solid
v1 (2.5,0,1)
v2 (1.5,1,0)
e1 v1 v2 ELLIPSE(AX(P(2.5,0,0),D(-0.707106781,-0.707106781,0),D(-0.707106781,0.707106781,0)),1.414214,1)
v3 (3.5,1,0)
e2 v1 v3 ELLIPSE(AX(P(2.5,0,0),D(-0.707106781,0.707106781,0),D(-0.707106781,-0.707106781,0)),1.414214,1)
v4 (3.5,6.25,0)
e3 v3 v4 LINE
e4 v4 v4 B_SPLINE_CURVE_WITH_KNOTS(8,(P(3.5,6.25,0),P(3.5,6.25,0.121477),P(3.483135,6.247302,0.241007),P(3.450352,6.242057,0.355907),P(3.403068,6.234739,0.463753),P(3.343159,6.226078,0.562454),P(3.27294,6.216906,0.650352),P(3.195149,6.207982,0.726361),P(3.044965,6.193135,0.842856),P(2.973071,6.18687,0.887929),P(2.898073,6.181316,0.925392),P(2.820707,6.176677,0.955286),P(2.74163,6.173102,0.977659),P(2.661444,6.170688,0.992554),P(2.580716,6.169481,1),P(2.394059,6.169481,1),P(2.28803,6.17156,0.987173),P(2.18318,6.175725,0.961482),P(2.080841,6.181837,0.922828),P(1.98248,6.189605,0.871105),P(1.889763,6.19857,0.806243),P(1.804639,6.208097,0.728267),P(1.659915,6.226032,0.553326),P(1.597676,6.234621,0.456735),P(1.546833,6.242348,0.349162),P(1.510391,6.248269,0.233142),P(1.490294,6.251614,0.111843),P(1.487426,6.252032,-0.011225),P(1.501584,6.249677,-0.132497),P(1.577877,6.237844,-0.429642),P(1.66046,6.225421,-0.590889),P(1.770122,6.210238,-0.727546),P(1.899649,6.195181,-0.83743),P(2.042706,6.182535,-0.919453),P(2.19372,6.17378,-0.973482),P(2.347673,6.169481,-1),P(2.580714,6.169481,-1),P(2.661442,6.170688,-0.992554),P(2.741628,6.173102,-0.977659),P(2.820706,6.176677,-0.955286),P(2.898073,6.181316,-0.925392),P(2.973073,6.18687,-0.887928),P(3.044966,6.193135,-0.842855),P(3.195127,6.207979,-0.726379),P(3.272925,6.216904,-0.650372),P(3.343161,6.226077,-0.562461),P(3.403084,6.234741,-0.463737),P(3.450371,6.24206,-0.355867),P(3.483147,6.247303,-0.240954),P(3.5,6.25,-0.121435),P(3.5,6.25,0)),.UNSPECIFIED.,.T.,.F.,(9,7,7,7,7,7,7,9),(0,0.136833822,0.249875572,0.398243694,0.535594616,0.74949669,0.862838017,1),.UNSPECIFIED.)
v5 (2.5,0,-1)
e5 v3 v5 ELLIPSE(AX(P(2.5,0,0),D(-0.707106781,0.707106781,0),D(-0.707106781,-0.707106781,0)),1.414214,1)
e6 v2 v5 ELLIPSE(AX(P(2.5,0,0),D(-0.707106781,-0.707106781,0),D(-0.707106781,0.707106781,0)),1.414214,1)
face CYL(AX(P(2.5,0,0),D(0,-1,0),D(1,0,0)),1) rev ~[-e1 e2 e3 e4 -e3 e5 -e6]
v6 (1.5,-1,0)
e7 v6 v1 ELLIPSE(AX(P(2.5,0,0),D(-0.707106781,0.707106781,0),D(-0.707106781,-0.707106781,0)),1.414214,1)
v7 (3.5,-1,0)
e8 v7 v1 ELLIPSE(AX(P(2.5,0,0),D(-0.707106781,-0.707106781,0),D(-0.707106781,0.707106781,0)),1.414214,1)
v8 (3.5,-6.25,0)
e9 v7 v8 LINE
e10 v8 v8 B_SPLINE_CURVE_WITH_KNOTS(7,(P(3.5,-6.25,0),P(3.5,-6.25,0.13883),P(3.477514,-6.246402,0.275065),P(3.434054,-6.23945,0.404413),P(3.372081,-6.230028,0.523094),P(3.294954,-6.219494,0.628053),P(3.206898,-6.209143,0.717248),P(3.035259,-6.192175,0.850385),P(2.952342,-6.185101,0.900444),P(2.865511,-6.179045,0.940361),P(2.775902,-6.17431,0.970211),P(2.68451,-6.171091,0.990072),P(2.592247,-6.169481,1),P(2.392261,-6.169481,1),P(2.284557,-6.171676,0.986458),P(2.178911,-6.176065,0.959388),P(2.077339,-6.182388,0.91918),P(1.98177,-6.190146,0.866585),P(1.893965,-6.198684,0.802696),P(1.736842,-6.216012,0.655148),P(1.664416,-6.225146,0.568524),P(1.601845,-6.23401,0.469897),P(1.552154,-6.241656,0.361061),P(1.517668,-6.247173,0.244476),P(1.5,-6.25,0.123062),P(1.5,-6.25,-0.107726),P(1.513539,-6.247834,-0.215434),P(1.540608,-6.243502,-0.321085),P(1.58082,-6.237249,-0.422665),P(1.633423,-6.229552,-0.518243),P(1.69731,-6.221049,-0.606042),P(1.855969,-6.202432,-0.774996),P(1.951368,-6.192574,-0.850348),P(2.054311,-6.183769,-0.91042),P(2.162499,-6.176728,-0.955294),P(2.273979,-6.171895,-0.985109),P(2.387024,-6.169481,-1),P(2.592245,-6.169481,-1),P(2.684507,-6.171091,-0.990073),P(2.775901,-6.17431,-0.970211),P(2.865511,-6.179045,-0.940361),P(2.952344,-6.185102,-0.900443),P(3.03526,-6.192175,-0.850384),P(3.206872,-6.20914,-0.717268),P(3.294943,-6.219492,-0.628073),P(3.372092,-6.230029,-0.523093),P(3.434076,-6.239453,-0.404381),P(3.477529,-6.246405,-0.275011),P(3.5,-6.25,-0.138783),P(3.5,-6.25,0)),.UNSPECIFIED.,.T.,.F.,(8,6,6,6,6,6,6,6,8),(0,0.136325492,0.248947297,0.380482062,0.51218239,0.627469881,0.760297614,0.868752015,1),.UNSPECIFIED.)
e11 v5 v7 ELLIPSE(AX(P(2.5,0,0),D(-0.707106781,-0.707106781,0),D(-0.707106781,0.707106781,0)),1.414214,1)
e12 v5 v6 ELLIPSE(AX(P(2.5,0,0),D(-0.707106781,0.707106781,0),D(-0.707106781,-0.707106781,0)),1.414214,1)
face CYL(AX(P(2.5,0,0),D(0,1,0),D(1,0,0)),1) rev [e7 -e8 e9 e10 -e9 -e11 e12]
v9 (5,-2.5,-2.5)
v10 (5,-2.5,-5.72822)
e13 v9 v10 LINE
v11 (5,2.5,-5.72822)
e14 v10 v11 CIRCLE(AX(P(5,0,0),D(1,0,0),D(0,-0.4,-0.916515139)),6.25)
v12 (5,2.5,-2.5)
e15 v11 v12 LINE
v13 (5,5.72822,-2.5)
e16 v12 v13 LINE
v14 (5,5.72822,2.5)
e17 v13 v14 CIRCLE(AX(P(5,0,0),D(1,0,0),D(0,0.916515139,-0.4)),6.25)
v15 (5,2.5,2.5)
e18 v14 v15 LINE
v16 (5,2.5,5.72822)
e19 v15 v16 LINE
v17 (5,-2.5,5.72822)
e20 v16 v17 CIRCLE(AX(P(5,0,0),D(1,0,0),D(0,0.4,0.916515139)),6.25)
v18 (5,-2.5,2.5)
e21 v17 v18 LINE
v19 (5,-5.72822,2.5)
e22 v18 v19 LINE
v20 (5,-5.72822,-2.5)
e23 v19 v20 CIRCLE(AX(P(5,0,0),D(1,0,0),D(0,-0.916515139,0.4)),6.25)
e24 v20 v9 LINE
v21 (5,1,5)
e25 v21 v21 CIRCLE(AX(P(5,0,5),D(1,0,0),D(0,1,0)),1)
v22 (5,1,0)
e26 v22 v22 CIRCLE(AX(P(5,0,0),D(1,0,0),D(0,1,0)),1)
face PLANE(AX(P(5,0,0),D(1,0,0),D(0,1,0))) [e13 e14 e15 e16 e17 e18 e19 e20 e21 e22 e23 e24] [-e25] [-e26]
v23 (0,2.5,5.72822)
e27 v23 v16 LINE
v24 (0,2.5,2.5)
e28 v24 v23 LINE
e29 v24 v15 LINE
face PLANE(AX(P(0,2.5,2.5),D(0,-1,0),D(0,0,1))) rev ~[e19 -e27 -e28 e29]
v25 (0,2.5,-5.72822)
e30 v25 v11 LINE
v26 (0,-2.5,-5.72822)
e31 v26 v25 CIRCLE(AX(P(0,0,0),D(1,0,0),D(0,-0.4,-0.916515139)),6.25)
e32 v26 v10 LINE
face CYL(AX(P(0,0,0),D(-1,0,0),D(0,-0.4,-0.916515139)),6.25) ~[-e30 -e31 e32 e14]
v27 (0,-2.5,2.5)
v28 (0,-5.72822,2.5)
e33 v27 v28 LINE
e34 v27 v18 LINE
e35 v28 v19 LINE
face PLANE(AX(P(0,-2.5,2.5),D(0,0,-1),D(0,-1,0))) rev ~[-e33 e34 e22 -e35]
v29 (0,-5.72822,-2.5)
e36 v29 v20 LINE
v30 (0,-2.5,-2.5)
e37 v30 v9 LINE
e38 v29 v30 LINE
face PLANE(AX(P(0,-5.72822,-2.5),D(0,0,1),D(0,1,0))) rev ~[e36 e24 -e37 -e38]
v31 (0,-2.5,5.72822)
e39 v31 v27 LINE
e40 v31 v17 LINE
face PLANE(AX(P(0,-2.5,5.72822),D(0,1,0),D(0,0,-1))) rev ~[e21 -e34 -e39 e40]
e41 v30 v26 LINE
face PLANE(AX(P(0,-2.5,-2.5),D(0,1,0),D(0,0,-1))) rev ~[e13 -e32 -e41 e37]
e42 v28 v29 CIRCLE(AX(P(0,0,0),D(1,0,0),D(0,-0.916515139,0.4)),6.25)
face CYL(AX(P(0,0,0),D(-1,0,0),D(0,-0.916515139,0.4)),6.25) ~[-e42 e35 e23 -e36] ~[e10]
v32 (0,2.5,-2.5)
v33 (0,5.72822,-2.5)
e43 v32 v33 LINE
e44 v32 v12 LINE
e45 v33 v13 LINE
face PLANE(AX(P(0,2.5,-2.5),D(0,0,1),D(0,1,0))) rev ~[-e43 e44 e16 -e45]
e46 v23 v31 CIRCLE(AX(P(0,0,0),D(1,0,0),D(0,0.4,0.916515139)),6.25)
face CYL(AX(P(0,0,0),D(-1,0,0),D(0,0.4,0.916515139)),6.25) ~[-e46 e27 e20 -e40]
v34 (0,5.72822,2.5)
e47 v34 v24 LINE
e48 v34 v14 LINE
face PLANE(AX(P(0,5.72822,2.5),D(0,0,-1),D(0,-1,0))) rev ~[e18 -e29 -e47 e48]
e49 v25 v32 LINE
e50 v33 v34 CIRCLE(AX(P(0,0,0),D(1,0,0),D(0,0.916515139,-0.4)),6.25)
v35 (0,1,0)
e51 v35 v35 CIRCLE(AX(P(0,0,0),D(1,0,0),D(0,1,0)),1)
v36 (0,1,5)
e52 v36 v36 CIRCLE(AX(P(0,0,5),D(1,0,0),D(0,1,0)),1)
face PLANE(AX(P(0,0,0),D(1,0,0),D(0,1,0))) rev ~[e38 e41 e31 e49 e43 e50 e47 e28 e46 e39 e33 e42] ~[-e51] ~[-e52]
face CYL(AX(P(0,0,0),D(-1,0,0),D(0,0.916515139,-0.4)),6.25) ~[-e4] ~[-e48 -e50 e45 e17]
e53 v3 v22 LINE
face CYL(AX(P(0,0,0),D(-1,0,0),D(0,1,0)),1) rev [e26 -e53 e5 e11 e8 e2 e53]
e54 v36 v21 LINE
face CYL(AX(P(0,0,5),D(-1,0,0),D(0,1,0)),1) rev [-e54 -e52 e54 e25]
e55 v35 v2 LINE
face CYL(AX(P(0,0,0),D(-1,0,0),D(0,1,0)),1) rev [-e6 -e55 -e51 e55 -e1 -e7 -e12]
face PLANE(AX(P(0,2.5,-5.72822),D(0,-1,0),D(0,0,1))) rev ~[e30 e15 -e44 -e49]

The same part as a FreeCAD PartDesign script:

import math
import FreeCAD as App
import Part
import Sketcher
from FreeCAD import Vector
Q = App.Units.Quantity

doc = App.newDocument("Part")
body = doc.addObject("PartDesign::Body", "Body")

# Sketch on YZ plane
sketch1 = body.newObject("Sketcher::SketchObject", "Sketch")
sketch1.AttachmentSupport = (doc.getObject("YZ_Plane"), [""])
sketch1.MapMode = "FlatFace"
sketch1.addGeometry(Part.LineSegment(Vector(-2.5, 2.5, 0), Vector(-5.7, 2.5, 0)), False)
sketch1.addGeometry(Part.ArcOfCircle(Part.Circle(Vector(0, 0, 0), Vector(0, 0, 1), 6.2), math.radians(156), math.radians(204)), False)
sketch1.addGeometry(Part.LineSegment(Vector(-5.7, -2.5, 0), Vector(-2.5, -2.5, 0)), False)
sketch1.addGeometry(Part.LineSegment(Vector(-2.5, -2.5, 0), Vector(-2.5, -5.7, 0)), False)
sketch1.addGeometry(Part.ArcOfCircle(Part.Circle(Vector(0, 0, 0), Vector(0, 0, 1), 6.2), math.radians(-114), math.radians(-66)), False)
sketch1.addGeometry(Part.LineSegment(Vector(2.5, -5.7, 0), Vector(2.5, -2.5, 0)), False)
sketch1.addGeometry(Part.LineSegment(Vector(2.5, -2.5, 0), Vector(5.7, -2.5, 0)), False)
sketch1.addGeometry(Part.ArcOfCircle(Part.Circle(Vector(0, 0, 0), Vector(0, 0, 1), 6.2), math.radians(-24), math.radians(24)), False)
sketch1.addGeometry(Part.LineSegment(Vector(5.7, 2.5, 0), Vector(2.5, 2.5, 0)), False)
sketch1.addGeometry(Part.LineSegment(Vector(2.5, 2.5, 0), Vector(2.5, 5.7, 0)), False)
sketch1.addGeometry(Part.ArcOfCircle(Part.Circle(Vector(0, 0, 0), Vector(0, 0, 1), 6.2), math.radians(66), math.radians(114)), False)
sketch1.addGeometry(Part.LineSegment(Vector(-2.5, 5.7, 0), Vector(-2.5, 2.5, 0)), False)
sketch1.addGeometry(Part.Circle(Vector(0, 0, 0), Vector(0, 0, 1), 1), False)
sketch1.addGeometry(Part.Circle(Vector(0, 5, 0), Vector(0, 0, 1), 1), False)
sketch1.addConstraint(Sketcher.Constraint("Coincident", 0, 2, 1, 1))
sketch1.addConstraint(Sketcher.Constraint("Coincident", 1, 2, 2, 1))
sketch1.addConstraint(Sketcher.Constraint("Coincident", 2, 2, 3, 1))
sketch1.addConstraint(Sketcher.Constraint("Coincident", 3, 2, 4, 1))
sketch1.addConstraint(Sketcher.Constraint("Coincident", 4, 2, 5, 1))
sketch1.addConstraint(Sketcher.Constraint("Coincident", 5, 2, 6, 1))
sketch1.addConstraint(Sketcher.Constraint("Coincident", 6, 2, 7, 1))
sketch1.addConstraint(Sketcher.Constraint("Coincident", 7, 2, 8, 1))
sketch1.addConstraint(Sketcher.Constraint("Coincident", 8, 2, 9, 1))
sketch1.addConstraint(Sketcher.Constraint("Coincident", 9, 2, 10, 1))
sketch1.addConstraint(Sketcher.Constraint("Coincident", 10, 2, 11, 1))
sketch1.addConstraint(Sketcher.Constraint("Coincident", 11, 2, 0, 1))
sketch1.addConstraint(Sketcher.Constraint("Horizontal", 0))
sketch1.addConstraint(Sketcher.Constraint("Horizontal", 2))
sketch1.addConstraint(Sketcher.Constraint("Vertical", 3))
sketch1.addConstraint(Sketcher.Constraint("Vertical", 5))
sketch1.addConstraint(Sketcher.Constraint("Horizontal", 6))
sketch1.addConstraint(Sketcher.Constraint("Horizontal", 8))
sketch1.addConstraint(Sketcher.Constraint("Vertical", 9))
sketch1.addConstraint(Sketcher.Constraint("Vertical", 11))
sketch1.addConstraint(Sketcher.Constraint("Coincident", 1, 3, -1, 1))
sketch1.addConstraint(Sketcher.Constraint("Coincident", 4, 3, -1, 1))
sketch1.addConstraint(Sketcher.Constraint("Coincident", 7, 3, -1, 1))
sketch1.addConstraint(Sketcher.Constraint("Coincident", 10, 3, -1, 1))
sketch1.addConstraint(Sketcher.Constraint("Coincident", 12, 3, -1, 1))
sketch1.addConstraint(Sketcher.Constraint("Equal", 1, 4))
sketch1.addConstraint(Sketcher.Constraint("Equal", 4, 7))
sketch1.addConstraint(Sketcher.Constraint("Equal", 7, 10))
sketch1.addConstraint(Sketcher.Constraint("Equal", 12, 13))
sketch1.addConstraint(Sketcher.Constraint("Symmetric", 2, 2, 8, 2, -1, 1))
sketch1.addConstraint(Sketcher.Constraint("Symmetric", 5, 2, 11, 2, -1, 1))
sketch1.addConstraint(Sketcher.Constraint("Symmetric", 2, 2, 5, 2, -2))
sketch1.addConstraint(Sketcher.Constraint("PointOnObject", 13, 3, -2))
sketch1.addConstraint(Sketcher.Constraint("Equal", 8, 3))
sketch1.addConstraint(Sketcher.Constraint("Diameter", 12, Q("2 mm")))
sketch1.addConstraint(Sketcher.Constraint("Radius", 1, Q("6.25 mm")))
sketch1.addConstraint(Sketcher.Constraint("DistanceY", -1, 1, 13, 3, Q("5 mm")))
sketch1.addConstraint(Sketcher.Constraint("DistanceY", 1, 2, 0, 2, Q("5 mm")))
pad1 = body.newObject("PartDesign::Pad", "Pad")
pad1.Profile = sketch1
pad1.Length = 5

# Sketch on XZ plane
sketch2 = body.newObject("Sketcher::SketchObject", "Sketch001")
sketch2.AttachmentSupport = (doc.getObject("XZ_Plane"), [""])
sketch2.MapMode = "FlatFace"
sketch2.addGeometry(Part.Circle(Vector(2.5, 0, 0), Vector(0, 0, 1), 1), False)
sketch2.addConstraint(Sketcher.Constraint("PointOnObject", 0, 3, -1))
sketch2.addConstraint(Sketcher.Constraint("Diameter", 0, Q("2 mm")))
sketch2.addConstraint(Sketcher.Constraint("DistanceX", -1, 1, 0, 3, Q("2.5 mm")))
pocket1 = body.newObject("PartDesign::Pocket", "Pocket")
pocket1.Profile = sketch2
pocket1.Type = "ThroughAll"
pocket1.Midplane = True

doc.recompute()
